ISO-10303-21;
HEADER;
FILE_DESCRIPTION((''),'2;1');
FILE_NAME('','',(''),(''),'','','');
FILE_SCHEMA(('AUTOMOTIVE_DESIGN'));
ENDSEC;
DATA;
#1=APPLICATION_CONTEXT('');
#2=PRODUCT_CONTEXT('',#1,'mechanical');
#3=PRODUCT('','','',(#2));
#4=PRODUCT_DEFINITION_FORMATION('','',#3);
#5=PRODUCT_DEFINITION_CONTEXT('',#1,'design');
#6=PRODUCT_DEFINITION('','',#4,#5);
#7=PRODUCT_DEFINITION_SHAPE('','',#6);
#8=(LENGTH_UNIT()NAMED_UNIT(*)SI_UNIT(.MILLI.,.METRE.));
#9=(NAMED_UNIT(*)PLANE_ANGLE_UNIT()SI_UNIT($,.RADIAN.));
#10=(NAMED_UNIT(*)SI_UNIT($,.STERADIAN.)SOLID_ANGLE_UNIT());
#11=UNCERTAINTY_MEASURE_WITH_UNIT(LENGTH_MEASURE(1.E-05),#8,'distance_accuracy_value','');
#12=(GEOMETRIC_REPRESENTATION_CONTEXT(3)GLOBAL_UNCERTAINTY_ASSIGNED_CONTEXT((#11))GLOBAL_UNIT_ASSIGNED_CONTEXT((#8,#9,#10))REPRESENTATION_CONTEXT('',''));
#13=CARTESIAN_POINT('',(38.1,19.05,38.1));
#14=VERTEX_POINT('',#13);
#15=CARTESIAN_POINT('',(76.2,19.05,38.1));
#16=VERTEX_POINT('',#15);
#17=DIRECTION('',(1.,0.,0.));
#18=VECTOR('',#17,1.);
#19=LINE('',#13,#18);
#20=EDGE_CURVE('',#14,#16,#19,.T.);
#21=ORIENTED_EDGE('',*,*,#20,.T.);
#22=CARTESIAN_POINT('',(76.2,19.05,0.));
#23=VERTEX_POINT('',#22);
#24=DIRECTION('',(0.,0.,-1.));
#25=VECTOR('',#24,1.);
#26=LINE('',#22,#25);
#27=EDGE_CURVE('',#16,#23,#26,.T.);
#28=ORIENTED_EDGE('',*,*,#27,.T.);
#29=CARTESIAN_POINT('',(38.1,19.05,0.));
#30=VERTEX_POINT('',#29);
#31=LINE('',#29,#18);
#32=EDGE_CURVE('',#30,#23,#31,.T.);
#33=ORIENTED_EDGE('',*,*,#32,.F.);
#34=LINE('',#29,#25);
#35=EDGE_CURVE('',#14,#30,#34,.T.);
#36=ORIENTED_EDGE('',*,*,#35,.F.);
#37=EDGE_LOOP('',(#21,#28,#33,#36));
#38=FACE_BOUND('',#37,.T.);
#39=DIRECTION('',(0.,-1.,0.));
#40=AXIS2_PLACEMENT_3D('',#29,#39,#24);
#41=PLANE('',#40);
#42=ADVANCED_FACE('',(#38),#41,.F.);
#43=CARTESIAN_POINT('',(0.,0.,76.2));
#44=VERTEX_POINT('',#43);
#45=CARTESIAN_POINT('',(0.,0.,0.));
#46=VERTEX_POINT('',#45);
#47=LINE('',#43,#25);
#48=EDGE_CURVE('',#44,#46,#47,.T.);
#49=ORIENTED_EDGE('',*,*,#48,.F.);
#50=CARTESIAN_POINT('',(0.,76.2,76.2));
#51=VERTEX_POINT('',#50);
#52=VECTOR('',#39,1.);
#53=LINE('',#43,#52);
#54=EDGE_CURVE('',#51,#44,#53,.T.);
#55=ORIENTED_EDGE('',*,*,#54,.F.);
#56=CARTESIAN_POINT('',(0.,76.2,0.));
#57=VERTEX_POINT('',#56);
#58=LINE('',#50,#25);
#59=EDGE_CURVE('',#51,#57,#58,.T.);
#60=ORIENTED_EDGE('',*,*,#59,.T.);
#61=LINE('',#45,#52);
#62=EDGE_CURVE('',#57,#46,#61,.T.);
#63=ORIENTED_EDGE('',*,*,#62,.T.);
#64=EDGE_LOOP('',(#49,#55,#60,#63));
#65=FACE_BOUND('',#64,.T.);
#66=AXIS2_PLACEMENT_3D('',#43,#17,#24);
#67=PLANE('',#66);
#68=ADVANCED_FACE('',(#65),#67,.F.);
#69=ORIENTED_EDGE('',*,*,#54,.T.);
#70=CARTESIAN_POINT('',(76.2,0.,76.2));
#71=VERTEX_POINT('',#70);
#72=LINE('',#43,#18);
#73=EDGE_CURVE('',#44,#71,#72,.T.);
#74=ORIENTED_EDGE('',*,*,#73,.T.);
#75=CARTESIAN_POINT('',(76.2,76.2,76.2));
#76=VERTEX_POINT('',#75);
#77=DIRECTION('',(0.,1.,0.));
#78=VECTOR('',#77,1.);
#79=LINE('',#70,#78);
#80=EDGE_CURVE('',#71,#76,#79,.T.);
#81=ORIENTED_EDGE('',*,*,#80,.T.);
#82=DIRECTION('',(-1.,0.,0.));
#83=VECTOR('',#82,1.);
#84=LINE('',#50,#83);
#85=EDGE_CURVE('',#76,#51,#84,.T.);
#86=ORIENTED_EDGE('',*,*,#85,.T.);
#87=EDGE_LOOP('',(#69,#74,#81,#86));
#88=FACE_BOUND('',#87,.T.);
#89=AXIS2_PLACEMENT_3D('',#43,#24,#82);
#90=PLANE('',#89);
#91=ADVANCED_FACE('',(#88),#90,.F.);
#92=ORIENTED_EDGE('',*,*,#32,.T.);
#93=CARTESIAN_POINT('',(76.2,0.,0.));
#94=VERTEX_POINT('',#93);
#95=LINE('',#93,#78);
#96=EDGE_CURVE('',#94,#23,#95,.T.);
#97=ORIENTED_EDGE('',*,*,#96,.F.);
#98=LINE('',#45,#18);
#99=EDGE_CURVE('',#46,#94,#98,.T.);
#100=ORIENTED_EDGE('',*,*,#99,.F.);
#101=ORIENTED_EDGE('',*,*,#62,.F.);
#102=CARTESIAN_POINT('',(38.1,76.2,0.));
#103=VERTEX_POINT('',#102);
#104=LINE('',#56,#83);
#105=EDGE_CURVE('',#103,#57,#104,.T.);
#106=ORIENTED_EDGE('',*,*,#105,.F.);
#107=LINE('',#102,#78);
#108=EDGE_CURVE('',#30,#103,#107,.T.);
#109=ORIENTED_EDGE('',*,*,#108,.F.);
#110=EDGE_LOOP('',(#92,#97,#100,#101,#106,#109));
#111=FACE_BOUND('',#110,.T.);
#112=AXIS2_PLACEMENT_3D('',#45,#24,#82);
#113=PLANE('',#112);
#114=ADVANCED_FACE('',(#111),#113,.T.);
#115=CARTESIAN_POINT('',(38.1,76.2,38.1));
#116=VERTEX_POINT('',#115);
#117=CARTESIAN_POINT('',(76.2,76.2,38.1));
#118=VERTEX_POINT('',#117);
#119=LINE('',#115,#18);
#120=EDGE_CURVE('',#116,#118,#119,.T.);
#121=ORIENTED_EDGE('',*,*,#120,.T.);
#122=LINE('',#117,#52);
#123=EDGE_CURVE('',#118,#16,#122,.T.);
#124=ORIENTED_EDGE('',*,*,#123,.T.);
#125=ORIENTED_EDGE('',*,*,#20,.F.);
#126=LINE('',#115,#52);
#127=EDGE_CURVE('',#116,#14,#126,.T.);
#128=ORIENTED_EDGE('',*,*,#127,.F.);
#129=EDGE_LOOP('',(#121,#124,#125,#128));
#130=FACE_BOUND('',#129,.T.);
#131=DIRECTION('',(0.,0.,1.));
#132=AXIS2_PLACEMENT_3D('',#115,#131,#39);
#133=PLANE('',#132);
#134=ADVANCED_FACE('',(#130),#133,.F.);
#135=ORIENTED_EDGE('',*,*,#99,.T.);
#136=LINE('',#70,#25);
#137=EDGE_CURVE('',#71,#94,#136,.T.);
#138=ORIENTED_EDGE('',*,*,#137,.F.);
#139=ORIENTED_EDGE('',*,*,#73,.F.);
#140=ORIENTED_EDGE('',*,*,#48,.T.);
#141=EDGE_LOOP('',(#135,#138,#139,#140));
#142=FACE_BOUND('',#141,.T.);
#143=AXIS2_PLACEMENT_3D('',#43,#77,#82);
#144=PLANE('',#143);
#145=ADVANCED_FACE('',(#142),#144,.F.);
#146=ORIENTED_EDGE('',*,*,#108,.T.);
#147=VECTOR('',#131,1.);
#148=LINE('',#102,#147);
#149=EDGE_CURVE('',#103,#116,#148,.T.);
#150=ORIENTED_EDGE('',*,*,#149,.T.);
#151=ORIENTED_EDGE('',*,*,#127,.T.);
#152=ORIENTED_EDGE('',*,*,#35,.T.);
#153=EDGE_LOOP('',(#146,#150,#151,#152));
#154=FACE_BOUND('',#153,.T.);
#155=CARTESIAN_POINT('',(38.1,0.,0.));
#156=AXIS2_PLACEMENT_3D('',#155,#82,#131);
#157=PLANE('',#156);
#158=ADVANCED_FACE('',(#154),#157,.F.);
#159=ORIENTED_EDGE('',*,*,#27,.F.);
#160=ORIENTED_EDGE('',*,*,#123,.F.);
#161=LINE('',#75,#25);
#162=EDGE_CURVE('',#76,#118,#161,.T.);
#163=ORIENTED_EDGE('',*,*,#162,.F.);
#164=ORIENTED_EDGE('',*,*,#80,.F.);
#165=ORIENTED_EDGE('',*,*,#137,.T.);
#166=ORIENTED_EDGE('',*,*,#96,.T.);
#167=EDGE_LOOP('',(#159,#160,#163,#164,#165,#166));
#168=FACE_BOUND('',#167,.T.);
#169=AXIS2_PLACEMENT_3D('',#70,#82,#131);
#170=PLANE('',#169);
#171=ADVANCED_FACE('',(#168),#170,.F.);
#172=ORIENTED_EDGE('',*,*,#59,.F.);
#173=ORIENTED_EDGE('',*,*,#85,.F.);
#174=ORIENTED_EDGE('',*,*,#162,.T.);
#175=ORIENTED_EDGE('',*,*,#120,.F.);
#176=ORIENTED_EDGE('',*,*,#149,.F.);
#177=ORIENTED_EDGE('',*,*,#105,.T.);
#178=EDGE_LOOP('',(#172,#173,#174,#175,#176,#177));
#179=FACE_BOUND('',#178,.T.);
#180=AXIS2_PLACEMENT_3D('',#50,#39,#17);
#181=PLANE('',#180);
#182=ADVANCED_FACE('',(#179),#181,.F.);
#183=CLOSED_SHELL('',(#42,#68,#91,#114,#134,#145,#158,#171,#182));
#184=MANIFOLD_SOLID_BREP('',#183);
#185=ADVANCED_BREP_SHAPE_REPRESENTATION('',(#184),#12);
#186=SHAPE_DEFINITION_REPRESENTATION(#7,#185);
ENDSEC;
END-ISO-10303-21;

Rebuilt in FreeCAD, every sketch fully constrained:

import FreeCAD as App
import Part
import Sketcher

V = App.Vector
Q = App.Units.Quantity


def add_polygon(sketch, points):
    """Adds a closed chain of lines whose ends are joined by coincident constraints."""
    first, n = sketch.GeometryCount, len(points)
    for a, b in zip(points, points[1:] + points[:1]):
        sketch.addGeometry(Part.LineSegment(App.Vector(*a, 0), App.Vector(*b, 0)), False)
    for i in range(n):
        sketch.addConstraint(Sketcher.Constraint("Coincident", first + i, 2, first + (i + 1) % n, 1))

doc = App.newDocument("Part")
body = doc.addObject("PartDesign::Body", "Body")

sketch1 = body.newObject("Sketcher::SketchObject", "Sketch")
sketch1.AttachmentSupport = (doc.getObject("XY_Plane"), [""])
sketch1.MapMode = "FlatFace"
add_polygon(sketch1, [(0, 76), (0, 0), (76, 0), (76, 76)])
sketch1.addConstraint(Sketcher.Constraint("Vertical", 0))
sketch1.addConstraint(Sketcher.Constraint("Horizontal", 1))
sketch1.addConstraint(Sketcher.Constraint("Vertical", 2))
sketch1.addConstraint(Sketcher.Constraint("Horizontal", 3))
sketch1.addConstraint(Sketcher.Constraint("Coincident", 0, 2, -1, 1))
sketch1.addConstraint(Sketcher.Constraint("Equal", 3, 0))
sketch1.addConstraint(Sketcher.Constraint("DistanceX", 1, 1, 1, 2, Q("3 in")))
pad1 = body.newObject("PartDesign::Pad", "Pad")
pad1.Profile = sketch1
pad1.Length = Q("3 in")

sketch2 = body.newObject("Sketcher::SketchObject", "Sketch001")
sketch2.AttachmentSupport = (doc.getObject("YZ_Plane"), [""])
sketch2.MapMode = "FlatFace"
sketch2.AttachmentOffset = App.Placement(V(0, 0, 3 * 25.4), App.Rotation())
add_polygon(sketch2, [(76, 38), (19, 38), (19, 0), (76, 0)])
sketch2.addConstraint(Sketcher.Constraint("Horizontal", 0))
sketch2.addConstraint(Sketcher.Constraint("Vertical", 1))
sketch2.addConstraint(Sketcher.Constraint("Horizontal", 2))
sketch2.addConstraint(Sketcher.Constraint("Vertical", 3))
sketch2.addConstraint(Sketcher.Constraint("PointOnObject", 1, 2, -1))
sketch2.addConstraint(Sketcher.Constraint("DistanceY", 1, 2, 1, 1, Q("1.5 in")))
sketch2.addConstraint(Sketcher.Constraint("DistanceX", -1, 1, 2, 2, Q("3 in")))
sketch2.addConstraint(Sketcher.Constraint("DistanceX", 0, 2, 0, 1, Q("2.25 in")))
pocket1 = body.newObject("PartDesign::Pocket", "Pocket")
pocket1.Profile = sketch2
pocket1.Length = Q("1.5 in")

doc.recompute()
